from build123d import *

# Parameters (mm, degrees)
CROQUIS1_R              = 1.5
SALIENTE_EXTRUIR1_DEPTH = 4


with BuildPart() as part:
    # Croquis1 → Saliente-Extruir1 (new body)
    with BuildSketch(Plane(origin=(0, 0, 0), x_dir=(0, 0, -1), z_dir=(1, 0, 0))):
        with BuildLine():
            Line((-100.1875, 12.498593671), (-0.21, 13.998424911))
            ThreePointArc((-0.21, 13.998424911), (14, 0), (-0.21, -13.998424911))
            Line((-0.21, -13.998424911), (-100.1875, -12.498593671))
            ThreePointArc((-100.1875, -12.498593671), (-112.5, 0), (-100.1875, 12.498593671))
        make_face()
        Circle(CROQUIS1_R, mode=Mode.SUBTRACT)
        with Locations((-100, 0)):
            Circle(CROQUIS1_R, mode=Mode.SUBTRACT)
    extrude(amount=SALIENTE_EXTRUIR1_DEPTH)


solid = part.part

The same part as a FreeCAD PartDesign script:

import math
import FreeCAD as App
import Part
import Sketcher
Q = App.Units.Quantity

doc = App.newDocument("Part")
params = doc.addObject("Spreadsheet::Sheet", "Params")
for row, (alias, value) in enumerate([
    ("sketch1_diameter", "3 mm"),
    ("sketch1_radius", "14 mm"),
    ("sketch1_radius2", "12.5 mm"),
    ("pad1_length", "4 mm"),
], start=1):
    params.set(f"A{row}", alias)
    params.set(f"B{row}", "=" + value)
    params.setAlias(f"B{row}", alias)

body = doc.addObject("PartDesign::Body", "Body")

sketch1 = doc.addObject("Sketcher::SketchObject", "Sketch")
body.addObject(sketch1)
sketch1.AttachmentSupport = (doc.YZ_Plane, [""])
sketch1.MapMode = "FlatFace"
sketch1.addGeometry([
    Part.LineSegment(App.Vector(13.998425, 0.21, 0), App.Vector(12.498594, 100.1875, 0)),
    Part.ArcOfCircle(Part.Circle(App.Vector(0, 100, 0), App.Vector(0, 0, 1), 12.5), math.radians(0.859469), math.radians(179.140531)),
    Part.LineSegment(App.Vector(-12.498594, 100.1875, 0), App.Vector(-13.998425, 0.21, 0)),
    Part.ArcOfCircle(Part.Circle(App.Vector(0, 0, 0), App.Vector(0, 0, 1), 14), math.radians(179.140531), math.radians(360.859469)),
    Part.Circle(App.Vector(0, 0, 0), App.Vector(0, 0, 1), 1.5),
    Part.Circle(App.Vector(0, 100, 0), App.Vector(0, 0, 1), 1.5),
], False)
sketch1.addConstraint([
    Sketcher.Constraint("Tangent", 0, 2, 1, 1),
    Sketcher.Constraint("Tangent", 1, 2, 2, 1),
    Sketcher.Constraint("Tangent", 2, 2, 3, 1),
    Sketcher.Constraint("Tangent", 3, 2, 0, 1),
    Sketcher.Constraint("Coincident", 3, 3, -1, 1),
    Sketcher.Constraint("Coincident", 4, 3, -1, 1),
    Sketcher.Constraint("Coincident", 5, 3, 1, 3),
    Sketcher.Constraint("Equal", 4, 5),
    Sketcher.Constraint("PointOnObject", 1, 3, -2),
    Sketcher.Constraint("Diameter", 4, Q("3 mm")),
    Sketcher.Constraint("Radius", 3, Q("14 mm")),
    Sketcher.Constraint("Radius", 1, Q("12.5 mm")),
    Sketcher.Constraint("DistanceY", -1, 1, 1, 3, Q("100 mm")),
])
sketch1.setExpression("Constraints[9]", "Params.sketch1_diameter")
sketch1.setExpression("Constraints[10]", "Params.sketch1_radius")
sketch1.setExpression("Constraints[11]", "Params.sketch1_radius2")
pad1 = doc.addObject("PartDesign::Pad", "Pad")
body.addObject(pad1)
pad1.Profile = sketch1
pad1.setExpression("Length", "Params.pad1_length")

doc.recompute()
